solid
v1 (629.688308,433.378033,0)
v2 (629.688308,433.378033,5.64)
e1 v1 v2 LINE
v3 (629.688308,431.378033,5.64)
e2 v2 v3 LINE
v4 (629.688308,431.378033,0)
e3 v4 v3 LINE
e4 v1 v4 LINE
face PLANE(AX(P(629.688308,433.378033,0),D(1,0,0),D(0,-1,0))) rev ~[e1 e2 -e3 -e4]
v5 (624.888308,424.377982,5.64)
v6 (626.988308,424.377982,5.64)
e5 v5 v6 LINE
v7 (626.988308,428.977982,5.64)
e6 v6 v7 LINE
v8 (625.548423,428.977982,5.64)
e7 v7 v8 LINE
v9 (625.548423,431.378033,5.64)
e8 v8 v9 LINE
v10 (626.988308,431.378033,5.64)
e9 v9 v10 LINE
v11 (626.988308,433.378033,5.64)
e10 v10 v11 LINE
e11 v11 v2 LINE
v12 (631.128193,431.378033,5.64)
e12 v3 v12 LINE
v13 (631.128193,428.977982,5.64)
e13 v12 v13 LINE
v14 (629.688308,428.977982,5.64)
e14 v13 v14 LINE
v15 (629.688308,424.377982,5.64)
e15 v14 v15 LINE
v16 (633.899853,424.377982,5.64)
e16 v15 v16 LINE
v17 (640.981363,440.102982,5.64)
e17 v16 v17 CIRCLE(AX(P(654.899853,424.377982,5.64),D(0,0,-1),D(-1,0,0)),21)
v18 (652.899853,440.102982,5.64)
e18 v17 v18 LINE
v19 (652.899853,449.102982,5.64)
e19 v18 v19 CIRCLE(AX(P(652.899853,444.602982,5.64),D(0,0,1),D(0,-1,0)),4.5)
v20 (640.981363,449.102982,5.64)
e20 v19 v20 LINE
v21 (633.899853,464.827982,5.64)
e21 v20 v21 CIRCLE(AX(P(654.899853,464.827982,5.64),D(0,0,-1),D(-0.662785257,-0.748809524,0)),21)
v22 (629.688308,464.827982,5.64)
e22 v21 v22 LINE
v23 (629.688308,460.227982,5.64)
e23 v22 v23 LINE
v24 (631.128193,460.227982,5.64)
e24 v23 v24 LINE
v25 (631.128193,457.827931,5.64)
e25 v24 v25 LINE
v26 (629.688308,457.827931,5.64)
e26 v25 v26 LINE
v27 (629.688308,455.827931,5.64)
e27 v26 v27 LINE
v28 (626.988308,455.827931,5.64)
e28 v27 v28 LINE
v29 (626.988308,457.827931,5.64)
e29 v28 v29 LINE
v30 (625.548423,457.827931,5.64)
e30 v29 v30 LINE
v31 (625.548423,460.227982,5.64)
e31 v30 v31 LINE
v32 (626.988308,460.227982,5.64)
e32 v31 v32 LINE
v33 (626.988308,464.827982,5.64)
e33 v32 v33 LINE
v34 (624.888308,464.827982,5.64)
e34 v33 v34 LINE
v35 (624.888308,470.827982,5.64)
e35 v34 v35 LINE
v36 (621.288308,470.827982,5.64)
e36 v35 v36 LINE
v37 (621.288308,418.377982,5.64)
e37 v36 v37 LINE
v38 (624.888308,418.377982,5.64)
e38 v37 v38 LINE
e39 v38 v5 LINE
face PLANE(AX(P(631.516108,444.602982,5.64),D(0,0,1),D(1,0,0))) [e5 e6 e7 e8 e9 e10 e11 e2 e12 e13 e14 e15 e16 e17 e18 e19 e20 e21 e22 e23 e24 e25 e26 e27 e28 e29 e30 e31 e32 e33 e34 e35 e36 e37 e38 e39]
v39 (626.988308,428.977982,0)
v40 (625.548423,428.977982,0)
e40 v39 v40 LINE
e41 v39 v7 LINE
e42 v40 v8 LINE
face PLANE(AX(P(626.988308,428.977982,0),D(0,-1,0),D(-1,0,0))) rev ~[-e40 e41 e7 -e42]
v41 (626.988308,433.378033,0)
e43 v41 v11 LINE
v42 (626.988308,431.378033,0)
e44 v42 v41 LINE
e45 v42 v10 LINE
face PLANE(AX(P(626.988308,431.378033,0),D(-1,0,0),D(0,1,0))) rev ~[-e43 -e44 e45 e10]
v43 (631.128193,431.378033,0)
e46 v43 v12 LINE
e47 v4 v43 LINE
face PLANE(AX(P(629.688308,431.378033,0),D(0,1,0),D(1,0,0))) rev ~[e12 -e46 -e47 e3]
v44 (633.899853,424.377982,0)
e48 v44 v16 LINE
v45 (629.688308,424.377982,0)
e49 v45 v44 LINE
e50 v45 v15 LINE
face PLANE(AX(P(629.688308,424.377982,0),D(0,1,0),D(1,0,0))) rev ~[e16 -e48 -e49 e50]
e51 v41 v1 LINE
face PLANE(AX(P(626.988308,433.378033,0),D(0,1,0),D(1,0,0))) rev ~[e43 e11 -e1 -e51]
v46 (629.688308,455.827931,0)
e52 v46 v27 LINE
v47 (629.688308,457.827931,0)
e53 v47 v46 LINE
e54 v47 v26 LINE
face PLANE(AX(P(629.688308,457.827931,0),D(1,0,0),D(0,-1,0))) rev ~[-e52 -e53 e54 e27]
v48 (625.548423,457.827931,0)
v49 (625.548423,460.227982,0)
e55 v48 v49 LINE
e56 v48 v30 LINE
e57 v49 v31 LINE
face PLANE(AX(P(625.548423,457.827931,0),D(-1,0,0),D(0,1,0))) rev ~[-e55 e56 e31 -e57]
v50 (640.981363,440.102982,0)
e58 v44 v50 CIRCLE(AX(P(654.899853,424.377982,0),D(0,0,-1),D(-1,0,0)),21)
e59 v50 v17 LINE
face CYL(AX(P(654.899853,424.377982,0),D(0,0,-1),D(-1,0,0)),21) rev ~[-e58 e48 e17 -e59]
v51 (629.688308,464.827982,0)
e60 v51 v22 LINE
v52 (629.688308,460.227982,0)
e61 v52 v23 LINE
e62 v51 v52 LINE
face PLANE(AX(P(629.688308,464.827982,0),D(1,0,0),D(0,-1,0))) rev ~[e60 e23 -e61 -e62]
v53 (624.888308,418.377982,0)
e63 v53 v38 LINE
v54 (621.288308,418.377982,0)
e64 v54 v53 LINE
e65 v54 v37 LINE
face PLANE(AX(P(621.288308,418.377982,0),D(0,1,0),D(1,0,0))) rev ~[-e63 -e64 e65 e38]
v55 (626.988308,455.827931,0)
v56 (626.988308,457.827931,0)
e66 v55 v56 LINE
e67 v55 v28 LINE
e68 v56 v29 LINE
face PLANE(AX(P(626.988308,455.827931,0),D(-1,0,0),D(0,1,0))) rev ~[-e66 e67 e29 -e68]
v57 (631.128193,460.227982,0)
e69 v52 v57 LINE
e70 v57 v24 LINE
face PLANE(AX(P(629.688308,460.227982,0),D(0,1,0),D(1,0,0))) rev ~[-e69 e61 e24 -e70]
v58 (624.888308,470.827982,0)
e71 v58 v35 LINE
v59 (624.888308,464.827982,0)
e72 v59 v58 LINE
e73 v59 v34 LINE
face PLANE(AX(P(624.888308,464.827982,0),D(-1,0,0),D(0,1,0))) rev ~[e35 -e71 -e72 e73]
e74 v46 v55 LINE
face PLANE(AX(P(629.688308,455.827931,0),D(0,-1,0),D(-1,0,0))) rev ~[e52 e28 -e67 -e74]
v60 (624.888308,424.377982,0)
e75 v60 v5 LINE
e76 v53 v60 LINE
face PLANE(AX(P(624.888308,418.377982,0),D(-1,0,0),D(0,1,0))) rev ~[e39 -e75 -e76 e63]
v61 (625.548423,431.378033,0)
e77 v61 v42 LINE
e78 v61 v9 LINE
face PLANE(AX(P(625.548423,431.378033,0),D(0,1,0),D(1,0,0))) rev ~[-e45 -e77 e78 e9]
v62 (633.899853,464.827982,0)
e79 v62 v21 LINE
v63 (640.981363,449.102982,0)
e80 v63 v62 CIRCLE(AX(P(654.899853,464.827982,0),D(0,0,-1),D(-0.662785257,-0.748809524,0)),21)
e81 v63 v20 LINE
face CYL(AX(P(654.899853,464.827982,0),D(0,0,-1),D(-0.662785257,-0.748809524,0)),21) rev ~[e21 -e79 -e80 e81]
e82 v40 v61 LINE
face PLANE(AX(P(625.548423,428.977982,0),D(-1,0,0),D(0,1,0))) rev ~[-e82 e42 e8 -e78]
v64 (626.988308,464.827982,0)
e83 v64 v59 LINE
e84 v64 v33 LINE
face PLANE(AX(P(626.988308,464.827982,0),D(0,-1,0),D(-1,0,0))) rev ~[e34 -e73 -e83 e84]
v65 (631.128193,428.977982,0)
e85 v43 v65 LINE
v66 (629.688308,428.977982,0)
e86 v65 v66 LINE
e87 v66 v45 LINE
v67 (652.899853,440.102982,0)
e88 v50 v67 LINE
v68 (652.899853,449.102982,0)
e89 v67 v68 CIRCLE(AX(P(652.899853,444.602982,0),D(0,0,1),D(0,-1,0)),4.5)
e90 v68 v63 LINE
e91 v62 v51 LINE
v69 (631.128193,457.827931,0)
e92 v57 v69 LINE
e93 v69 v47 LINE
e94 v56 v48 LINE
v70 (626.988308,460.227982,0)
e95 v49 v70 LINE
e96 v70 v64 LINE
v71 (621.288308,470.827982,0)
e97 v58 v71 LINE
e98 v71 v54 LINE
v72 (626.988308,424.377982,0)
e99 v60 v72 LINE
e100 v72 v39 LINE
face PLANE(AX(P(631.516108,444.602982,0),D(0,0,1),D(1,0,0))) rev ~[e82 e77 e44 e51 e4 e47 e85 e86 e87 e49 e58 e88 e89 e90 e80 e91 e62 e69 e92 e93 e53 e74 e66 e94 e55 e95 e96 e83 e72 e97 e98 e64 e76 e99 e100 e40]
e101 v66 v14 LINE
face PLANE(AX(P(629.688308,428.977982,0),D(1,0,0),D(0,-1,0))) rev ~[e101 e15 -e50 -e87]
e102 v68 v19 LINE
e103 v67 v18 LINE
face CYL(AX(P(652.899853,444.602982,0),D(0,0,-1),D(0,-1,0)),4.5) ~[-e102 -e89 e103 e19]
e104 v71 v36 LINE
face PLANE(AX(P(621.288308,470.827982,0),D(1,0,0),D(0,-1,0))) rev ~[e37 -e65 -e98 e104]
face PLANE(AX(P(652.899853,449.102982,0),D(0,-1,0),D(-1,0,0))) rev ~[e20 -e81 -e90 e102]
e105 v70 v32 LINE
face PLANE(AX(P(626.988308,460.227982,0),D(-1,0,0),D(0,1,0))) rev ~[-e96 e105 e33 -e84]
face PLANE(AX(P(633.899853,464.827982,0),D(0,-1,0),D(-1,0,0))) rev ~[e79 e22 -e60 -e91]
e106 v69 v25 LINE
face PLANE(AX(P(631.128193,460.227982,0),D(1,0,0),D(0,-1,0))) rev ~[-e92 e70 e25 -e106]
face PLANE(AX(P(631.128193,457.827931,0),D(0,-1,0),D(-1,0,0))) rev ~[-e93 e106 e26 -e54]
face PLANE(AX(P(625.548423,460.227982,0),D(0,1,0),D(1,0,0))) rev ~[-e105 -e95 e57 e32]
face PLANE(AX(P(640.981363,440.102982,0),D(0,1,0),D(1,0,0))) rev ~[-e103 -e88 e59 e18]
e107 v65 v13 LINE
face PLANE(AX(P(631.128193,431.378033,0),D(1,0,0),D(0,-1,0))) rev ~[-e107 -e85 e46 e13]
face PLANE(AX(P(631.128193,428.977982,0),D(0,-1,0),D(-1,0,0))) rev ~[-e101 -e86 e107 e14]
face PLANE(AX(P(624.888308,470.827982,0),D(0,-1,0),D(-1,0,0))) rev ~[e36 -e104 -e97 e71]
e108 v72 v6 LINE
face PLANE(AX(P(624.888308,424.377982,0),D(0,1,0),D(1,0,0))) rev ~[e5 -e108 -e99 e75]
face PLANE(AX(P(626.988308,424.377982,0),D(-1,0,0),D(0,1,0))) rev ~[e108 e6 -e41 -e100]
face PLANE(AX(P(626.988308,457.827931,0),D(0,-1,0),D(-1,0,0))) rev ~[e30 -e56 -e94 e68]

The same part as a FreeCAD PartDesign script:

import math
import FreeCAD as App
import Part
import Sketcher

doc = App.newDocument("Part")
body = doc.addObject("PartDesign::Body", "Body")

# Sketch on XY plane
sketch1 = body.newObject("Sketcher::SketchObject", "Sketch")
sketch1.AttachmentSupport = (doc.getObject("XY_Plane"), [""])
sketch1.MapMode = "FlatFace"
sketch1.addGeometry([
    Part.LineSegment(App.Vector(652.9, 449.1, 0), App.Vector(641, 449.1, 0)),  # 0
    Part.ArcOfCircle(Part.Circle(App.Vector(654.9, 464.8, 0), App.Vector(0, 0, 1), 21), math.radians(180), math.radians(228)),  # 1
    Part.LineSegment(App.Vector(633.9, 464.8, 0), App.Vector(629.7, 464.8, 0)),  # 2
    Part.LineSegment(App.Vector(629.7, 464.8, 0), App.Vector(629.7, 460.2, 0)),  # 3
    Part.LineSegment(App.Vector(629.7, 460.2, 0), App.Vector(631.1, 460.2, 0)),  # 4
    Part.LineSegment(App.Vector(631.1, 460.2, 0), App.Vector(631.1, 457.8, 0)),  # 5
    Part.LineSegment(App.Vector(631.1, 457.8, 0), App.Vector(629.7, 457.8, 0)),  # 6
    Part.LineSegment(App.Vector(629.7, 457.8, 0), App.Vector(629.7, 455.8, 0)),  # 7
    Part.LineSegment(App.Vector(629.7, 455.8, 0), App.Vector(627, 455.8, 0)),  # 8
    Part.LineSegment(App.Vector(627, 455.8, 0), App.Vector(627, 457.8, 0)),  # 9
    Part.LineSegment(App.Vector(627, 457.8, 0), App.Vector(625.5, 457.8, 0)),  # 10
    Part.LineSegment(App.Vector(625.5, 457.8, 0), App.Vector(625.5, 460.2, 0)),  # 11
    Part.LineSegment(App.Vector(625.5, 460.2, 0), App.Vector(627, 460.2, 0)),  # 12
    Part.LineSegment(App.Vector(627, 460.2, 0), App.Vector(627, 464.8, 0)),  # 13
    Part.LineSegment(App.Vector(627, 464.8, 0), App.Vector(624.9, 464.8, 0)),  # 14
    Part.LineSegment(App.Vector(624.9, 464.8, 0), App.Vector(624.9, 470.8, 0)),  # 15
    Part.LineSegment(App.Vector(624.9, 470.8, 0), App.Vector(621.3, 470.8, 0)),  # 16
    Part.LineSegment(App.Vector(621.3, 470.8, 0), App.Vector(621.3, 418.4, 0)),  # 17
    Part.LineSegment(App.Vector(621.3, 418.4, 0), App.Vector(624.9, 418.4, 0)),  # 18
    Part.LineSegment(App.Vector(624.9, 418.4, 0), App.Vector(624.9, 424.4, 0)),  # 19
    Part.LineSegment(App.Vector(624.9, 424.4, 0), App.Vector(627, 424.4, 0)),  # 20
    Part.LineSegment(App.Vector(627, 424.4, 0), App.Vector(627, 429, 0)),  # 21
    Part.LineSegment(App.Vector(627, 429, 0), App.Vector(625.5, 429, 0)),  # 22
    Part.LineSegment(App.Vector(625.5, 429, 0), App.Vector(625.5, 431.4, 0)),  # 23
    Part.LineSegment(App.Vector(625.5, 431.4, 0), App.Vector(627, 431.4, 0)),  # 24
    Part.LineSegment(App.Vector(627, 431.4, 0), App.Vector(627, 433.4, 0)),  # 25
    Part.LineSegment(App.Vector(627, 433.4, 0), App.Vector(629.7, 433.4, 0)),  # 26
    Part.LineSegment(App.Vector(629.7, 433.4, 0), App.Vector(629.7, 431.4, 0)),  # 27
    Part.LineSegment(App.Vector(629.7, 431.4, 0), App.Vector(631.1, 431.4, 0)),  # 28
    Part.LineSegment(App.Vector(631.1, 431.4, 0), App.Vector(631.1, 429, 0)),  # 29
    Part.LineSegment(App.Vector(631.1, 429, 0), App.Vector(629.7, 429, 0)),  # 30
    Part.LineSegment(App.Vector(629.7, 429, 0), App.Vector(629.7, 424.4, 0)),  # 31
    Part.LineSegment(App.Vector(629.7, 424.4, 0), App.Vector(633.9, 424.4, 0)),  # 32
    Part.ArcOfCircle(Part.Circle(App.Vector(654.9, 424.4, 0), App.Vector(0, 0, 1), 21), math.radians(132), math.radians(180)),  # 33
    Part.LineSegment(App.Vector(641, 440.1, 0), App.Vector(652.9, 440.1, 0)),  # 34
    Part.ArcOfCircle(Part.Circle(App.Vector(652.9, 444.6, 0), App.Vector(0, 0, 1), 4.5), math.radians(-90), math.radians(90)),  # 35
], False)
sketch1.addConstraint([
    Sketcher.Constraint("Coincident", 0, 2, 1, 2),
    Sketcher.Constraint("Coincident", 1, 1, 2, 1),
    Sketcher.Constraint("Coincident", 2, 2, 3, 1),
    Sketcher.Constraint("Coincident", 3, 2, 4, 1),
    Sketcher.Constraint("Coincident", 4, 2, 5, 1),
    Sketcher.Constraint("Coincident", 5, 2, 6, 1),
    Sketcher.Constraint("Coincident", 6, 2, 7, 1),
    Sketcher.Constraint("Coincident", 7, 2, 8, 1),
    Sketcher.Constraint("Coincident", 8, 2, 9, 1),
    Sketcher.Constraint("Coincident", 9, 2, 10, 1),
    Sketcher.Constraint("Coincident", 10, 2, 11, 1),
    Sketcher.Constraint("Coincident", 11, 2, 12, 1),
    Sketcher.Constraint("Coincident", 12, 2, 13, 1),
    Sketcher.Constraint("Coincident", 13, 2, 14, 1),
    Sketcher.Constraint("Coincident", 14, 2, 15, 1),
    Sketcher.Constraint("Coincident", 15, 2, 16, 1),
    Sketcher.Constraint("Coincident", 16, 2, 17, 1),
    Sketcher.Constraint("Coincident", 17, 2, 18, 1),
    Sketcher.Constraint("Coincident", 18, 2, 19, 1),
    Sketcher.Constraint("Coincident", 19, 2, 20, 1),
    Sketcher.Constraint("Coincident", 20, 2, 21, 1),
    Sketcher.Constraint("Coincident", 21, 2, 22, 1),
    Sketcher.Constraint("Coincident", 22, 2, 23, 1),
    Sketcher.Constraint("Coincident", 23, 2, 24, 1),
    Sketcher.Constraint("Coincident", 24, 2, 25, 1),
    Sketcher.Constraint("Coincident", 25, 2, 26, 1),
    Sketcher.Constraint("Coincident", 26, 2, 27, 1),
    Sketcher.Constraint("Coincident", 27, 2, 28, 1),
    Sketcher.Constraint("Coincident", 28, 2, 29, 1),
    Sketcher.Constraint("Coincident", 29, 2, 30, 1),
    Sketcher.Constraint("Coincident", 30, 2, 31, 1),
    Sketcher.Constraint("Coincident", 31, 2, 32, 1),
    Sketcher.Constraint("Coincident", 32, 2, 33, 2),
    Sketcher.Constraint("Coincident", 33, 1, 34, 1),
    Sketcher.Constraint("Tangent", 34, 2, 35, 1),
    Sketcher.Constraint("Tangent", 35, 2, 0, 1),
    Sketcher.Constraint("Horizontal", 0),
    Sketcher.Constraint("Horizontal", 2),
    Sketcher.Constraint("Vertical", 3),
    Sketcher.Constraint("Horizontal", 4),
    Sketcher.Constraint("Vertical", 5),
    Sketcher.Constraint("Horizontal", 6),
    Sketcher.Constraint("Vertical", 7),
    Sketcher.Constraint("Horizontal", 8),
    Sketcher.Constraint("Vertical", 9),
    Sketcher.Constraint("Horizontal", 10),
    Sketcher.Constraint("Vertical", 11),
    Sketcher.Constraint("Horizontal", 12),
    Sketcher.Constraint("Vertical", 13),
    Sketcher.Constraint("Horizontal", 14),
    Sketcher.Constraint("Vertical", 15),
    Sketcher.Constraint("Horizontal", 16),
    Sketcher.Constraint("Vertical", 17),
    Sketcher.Constraint("Horizontal", 18),
    Sketcher.Constraint("Vertical", 19),
    Sketcher.Constraint("Horizontal", 20),
    Sketcher.Constraint("Vertical", 21),
    Sketcher.Constraint("Horizontal", 22),
    Sketcher.Constraint("Vertical", 23),
    Sketcher.Constraint("Horizontal", 24),
    Sketcher.Constraint("Vertical", 25),
    Sketcher.Constraint("Horizontal", 26),
    Sketcher.Constraint("Vertical", 27),
    Sketcher.Constraint("Horizontal", 28),
    Sketcher.Constraint("Vertical", 29),
    Sketcher.Constraint("Horizontal", 30),
    Sketcher.Constraint("Vertical", 31),
    Sketcher.Constraint("Horizontal", 32),
    Sketcher.Constraint("Horizontal", 34),
    Sketcher.Constraint("Equal", 1, 33),
    Sketcher.Constraint("Horizontal", 6, 2, 9, 2),
    Sketcher.Constraint("Horizontal", 4, 2, 11, 2),
    Sketcher.Constraint("Horizontal", 2, 2, 13, 2),
    Sketcher.Constraint("Horizontal", 33, 3, 19, 2),
    Sketcher.Constraint("Horizontal", 24, 2, 27, 2),
    Sketcher.Constraint("Horizontal", 22, 2, 29, 2),
    Sketcher.Constraint("Horizontal", 20, 2, 31, 2),
    Sketcher.Constraint("Vertical", 1, 3, 33, 3),
    Sketcher.Constraint("Vertical", 3, 2, 6, 2),
    Sketcher.Constraint("Vertical", 9, 2, 12, 2),
    Sketcher.Constraint("Vertical", 15, 2, 18, 2),
    Sketcher.Constraint("Vertical", 13, 2, 20, 2),
    Sketcher.Constraint("Vertical", 11, 2, 22, 2),
    Sketcher.Constraint("Vertical", 21, 2, 24, 2),
    Sketcher.Constraint("Vertical", 7, 2, 26, 2),
    Sketcher.Constraint("Vertical", 5, 2, 28, 2),
    Sketcher.Constraint("Vertical", 27, 2, 30, 2),
    Sketcher.Constraint("Vertical", 0, 2, 33, 1),
    Sketcher.Constraint("Equal", 6, 10),
    Sketcher.Constraint("Equal", 15, 19),
    Sketcher.Constraint("Equal", 13, 21),
    Sketcher.Constraint("Equal", 11, 23),
    Sketcher.Constraint("Equal", 9, 25),
    Sketcher.Constraint("Radius", 1, 21.0),
    Sketcher.Constraint("Radius", 35, 4.5),
    Sketcher.Constraint("DistanceY", 7, 2, 7, 1, 2.0),
    Sketcher.Constraint("DistanceY", 15, 1, 15, 2, 6.0),
    Sketcher.Constraint("DistanceX", 8, 2, 8, 1, 2.7),
    Sketcher.Constraint("DistanceX", 14, 2, 14, 1, 2.1),
    Sketcher.Constraint("DistanceX", 16, 2, 16, 1, 3.6),
    Sketcher.Constraint("DistanceY", 3, 2, 3, 1, 4.6),
    Sketcher.Constraint("DistanceX", 35, 3, 33, 3, 2.0),
    Sketcher.Constraint("DistanceY", 17, 2, 17, 1, 52.45),
    Sketcher.Constraint("DistanceY", 3, 2, 1, 3, 4.6),
    Sketcher.Constraint("DistanceY", 5, 2, 5, 1, 2.400051),
    Sketcher.Constraint("DistanceX", 2, 2, 2, 1, 4.211545),
    Sketcher.Constraint("DistanceX", 4, 1, 4, 2, 1.439885),
    Sketcher.Constraint("DistanceY", -1, 1, 1, 3, 464.827982),
    Sketcher.Constraint("DistanceX", -1, 1, 2, 2, 629.688308),
])
pad1 = body.newObject("PartDesign::Pad", "Pad")
pad1.Profile = sketch1
pad1.Length = 5.64

doc.recompute()
